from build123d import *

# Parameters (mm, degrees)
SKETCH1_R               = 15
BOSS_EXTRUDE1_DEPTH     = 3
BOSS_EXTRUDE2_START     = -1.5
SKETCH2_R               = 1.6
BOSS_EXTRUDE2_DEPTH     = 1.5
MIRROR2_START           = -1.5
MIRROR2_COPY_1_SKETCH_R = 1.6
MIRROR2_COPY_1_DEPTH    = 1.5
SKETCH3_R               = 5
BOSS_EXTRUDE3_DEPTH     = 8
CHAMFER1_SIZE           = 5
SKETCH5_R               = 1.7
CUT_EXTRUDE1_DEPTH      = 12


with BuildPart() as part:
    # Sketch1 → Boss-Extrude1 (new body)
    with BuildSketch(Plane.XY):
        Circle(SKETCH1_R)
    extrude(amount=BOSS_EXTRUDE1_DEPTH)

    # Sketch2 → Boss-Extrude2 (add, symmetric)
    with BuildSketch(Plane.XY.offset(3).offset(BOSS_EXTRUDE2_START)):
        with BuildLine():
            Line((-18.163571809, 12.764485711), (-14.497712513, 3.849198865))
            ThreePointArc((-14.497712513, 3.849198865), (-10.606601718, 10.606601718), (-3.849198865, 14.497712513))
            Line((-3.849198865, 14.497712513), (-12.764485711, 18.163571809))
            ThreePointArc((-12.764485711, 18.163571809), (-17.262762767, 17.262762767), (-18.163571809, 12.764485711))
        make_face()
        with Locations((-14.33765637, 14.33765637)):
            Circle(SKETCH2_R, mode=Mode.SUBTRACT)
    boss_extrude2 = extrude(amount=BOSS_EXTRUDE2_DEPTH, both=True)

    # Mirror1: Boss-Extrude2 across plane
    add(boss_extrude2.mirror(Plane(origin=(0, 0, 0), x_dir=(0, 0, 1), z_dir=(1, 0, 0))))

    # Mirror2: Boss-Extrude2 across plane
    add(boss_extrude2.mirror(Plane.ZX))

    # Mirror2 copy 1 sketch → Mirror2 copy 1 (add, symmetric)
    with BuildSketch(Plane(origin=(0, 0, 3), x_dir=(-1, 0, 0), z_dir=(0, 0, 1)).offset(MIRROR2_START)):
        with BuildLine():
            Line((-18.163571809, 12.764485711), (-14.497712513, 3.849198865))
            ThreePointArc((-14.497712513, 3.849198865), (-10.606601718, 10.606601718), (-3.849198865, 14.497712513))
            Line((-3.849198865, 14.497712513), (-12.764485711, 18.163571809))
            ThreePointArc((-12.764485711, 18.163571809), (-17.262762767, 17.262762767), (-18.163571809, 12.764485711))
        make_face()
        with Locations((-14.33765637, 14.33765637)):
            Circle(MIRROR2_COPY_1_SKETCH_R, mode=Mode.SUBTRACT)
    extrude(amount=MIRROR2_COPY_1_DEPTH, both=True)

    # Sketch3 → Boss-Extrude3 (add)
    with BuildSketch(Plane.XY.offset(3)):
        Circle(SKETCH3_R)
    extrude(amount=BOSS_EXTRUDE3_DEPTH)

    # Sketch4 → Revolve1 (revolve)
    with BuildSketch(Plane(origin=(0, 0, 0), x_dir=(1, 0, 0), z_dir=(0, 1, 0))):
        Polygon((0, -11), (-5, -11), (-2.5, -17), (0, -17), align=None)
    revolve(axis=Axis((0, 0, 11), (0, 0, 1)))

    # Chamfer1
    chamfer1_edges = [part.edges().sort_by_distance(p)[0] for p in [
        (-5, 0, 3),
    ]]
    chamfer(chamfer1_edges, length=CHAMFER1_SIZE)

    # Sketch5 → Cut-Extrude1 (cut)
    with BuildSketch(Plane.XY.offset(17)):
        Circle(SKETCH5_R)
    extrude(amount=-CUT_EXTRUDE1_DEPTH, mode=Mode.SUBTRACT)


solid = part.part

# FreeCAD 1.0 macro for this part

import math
import FreeCAD as App
import Part
import Sketcher
from FreeCAD import Vector
Q = App.Units.Quantity


def edges_at(feature, points):
    """Names of the edges that pass closest to the given points."""
    edges = feature.Shape.Edges
    near = lambda p: min(range(len(edges)), key=lambda i: edges[i].distToShape(Part.Vertex(*p))[0])
    return sorted({f"Edge{near(p) + 1}" for p in points})

doc = App.newDocument("Part")
body = doc.addObject("PartDesign::Body", "Body")

# Sketch on XY plane
sketch1 = body.newObject("Sketcher::SketchObject", "Sketch")
sketch1.AttachmentSupport = (doc.getObject("XY_Plane"), [""])
sketch1.MapMode = "FlatFace"
sketch1.addGeometry(Part.Circle(Vector(0, 0, 0), Vector(0, 0, 1), 15), False)
sketch1.addConstraint([
    Sketcher.Constraint("Coincident", 0, 3, -1, 1),
    Sketcher.Constraint("Diameter", 0, Q("30 mm")),
])
pad1 = body.newObject("PartDesign::Pad", "Pad")
pad1.Profile = sketch1
pad1.Length = 3

# Sketch on XY plane
sketch2 = body.newObject("Sketcher::SketchObject", "Sketch001")
sketch2.AttachmentSupport = (doc.getObject("XY_Plane"), [""])
sketch2.MapMode = "FlatFace"
sketch2.AttachmentOffset = App.Placement(Vector(0, 0, 1.5), App.Rotation())
sketch2.addGeometry([
    Part.LineSegment(Vector(-18.163572, 12.764486, 0), Vector(-14.497713, 3.849199, 0)),  # 0
    Part.ArcOfCircle(Part.Circle(Vector(0, 0, 0), Vector(0, 0, 1), 15), math.radians(104.869199), math.radians(165.130801)),  # 1
    Part.LineSegment(Vector(-3.849199, 14.497713, 0), Vector(-12.764486, 18.163572, 0)),  # 2
    Part.ArcOfCircle(Part.Circle(Vector(-14.337656, 14.337656, 0), Vector(0, 0, 1), 4.136725), math.radians(67.648121), math.radians(202.351879)),  # 3
    Part.Circle(Vector(-14.337656, 14.337656, 0), Vector(0, 0, 1), 1.6),  # 4
], False)
sketch2.addConstraint([
    Sketcher.Constraint("Coincident", 0, 2, 1, 2),
    Sketcher.Constraint("Coincident", 1, 1, 2, 1),
    Sketcher.Constraint("Tangent", 2, 2, 3, 1),
    Sketcher.Constraint("Tangent", 3, 2, 0, 1),
    Sketcher.Constraint("Coincident", 1, 3, -1, 1),
    Sketcher.Constraint("Coincident", 4, 3, 3, 3),
    Sketcher.Constraint("Equal", 0, 2),
    Sketcher.Constraint("Radius", 1, Q("15 mm")),
    Sketcher.Constraint("Diameter", 4, Q("3.2 mm")),
    Sketcher.Constraint("Radius", 3, Q("4.136725 mm")),
    Sketcher.Constraint("DistanceY", -1, 1, 0, 2, Q("3.849199 mm")),
    Sketcher.Constraint("DistanceX", 1, 1, -1, 1, Q("3.849199 mm")),
    Sketcher.Constraint("DistanceY", -1, 1, 2, 2, Q("18.163572 mm")),
])
pad2 = body.newObject("PartDesign::Pad", "Pad001")
pad2.Profile = sketch2
pad2.Length = 3
pad2.Midplane = True
doc.recompute()

mirrored = body.newObject("PartDesign::Mirrored", "Mirrored")
mirrored.Originals = [pad2]
mirrored.MirrorPlane = (doc.getObject("YZ_Plane"), [""])
body.Tip = mirrored
doc.recompute()

mirrored2 = body.newObject("PartDesign::Mirrored", "Mirrored001")
mirrored2.Originals = [pad2]
mirrored2.MirrorPlane = (doc.getObject("XZ_Plane"), [""])
body.Tip = mirrored2

# Sketch on XY plane
sketch3 = body.newObject("Sketcher::SketchObject", "Sketch002")
sketch3.AttachmentSupport = (doc.getObject("XY_Plane"), [""])
sketch3.MapMode = "FlatFace"
sketch3.AttachmentOffset = App.Placement(Vector(0, 0, 1.5), App.Rotation())
sketch3.addGeometry([
    Part.LineSegment(Vector(18.163572, -12.764486, 0), Vector(14.497713, -3.849199, 0)),  # 0
    Part.ArcOfCircle(Part.Circle(Vector(0, 0, 0), Vector(0, 0, 1), 15), math.radians(-75.130801), math.radians(-14.869199)),  # 1
    Part.LineSegment(Vector(3.849199, -14.497713, 0), Vector(12.764486, -18.163572, 0)),  # 2
    Part.ArcOfCircle(Part.Circle(Vector(14.337656, -14.337656, 0), Vector(0, 0, 1), 4.136725), math.radians(-112.351879), math.radians(22.351879)),  # 3
    Part.Circle(Vector(14.337656, -14.337656, 0), Vector(0, 0, 1), 1.6),  # 4
], False)
sketch3.addConstraint([
    Sketcher.Constraint("Coincident", 0, 2, 1, 2),
    Sketcher.Constraint("Coincident", 1, 1, 2, 1),
    Sketcher.Constraint("Tangent", 2, 2, 3, 1),
    Sketcher.Constraint("Tangent", 3, 2, 0, 1),
    Sketcher.Constraint("Coincident", 1, 3, -1, 1),
    Sketcher.Constraint("Coincident", 4, 3, 3, 3),
    Sketcher.Constraint("Equal", 0, 2),
    Sketcher.Constraint("Radius", 1, Q("15 mm")),
    Sketcher.Constraint("Diameter", 4, Q("3.2 mm")),
    Sketcher.Constraint("Radius", 3, Q("4.136725 mm")),
    Sketcher.Constraint("DistanceY", 0, 2, -1, 1, Q("3.849199 mm")),
    Sketcher.Constraint("DistanceX", -1, 1, 1, 1, Q("3.849199 mm")),
    Sketcher.Constraint("DistanceY", 2, 2, -1, 1, Q("18.163572 mm")),
])
pad3 = body.newObject("PartDesign::Pad", "Pad002")
pad3.Profile = sketch3
pad3.Length = 3
pad3.Midplane = True

# Sketch on XY plane
sketch4 = body.newObject("Sketcher::SketchObject", "Sketch003")
sketch4.AttachmentSupport = (doc.getObject("XY_Plane"), [""])
sketch4.MapMode = "FlatFace"
sketch4.AttachmentOffset = App.Placement(Vector(0, 0, 3), App.Rotation())
sketch4.addGeometry(Part.Circle(Vector(0, 0, 0), Vector(0, 0, 1), 5), False)
sketch4.addConstraint([
    Sketcher.Constraint("Coincident", 0, 3, -1, 1),
    Sketcher.Constraint("Diameter", 0, Q("10 mm")),
])
pad4 = body.newObject("PartDesign::Pad", "Pad003")
pad4.Profile = sketch4
pad4.Length = 8

# Sketch on XZ plane
sketch5 = body.newObject("Sketcher::SketchObject", "Sketch004")
sketch5.AttachmentSupport = (doc.getObject("XZ_Plane"), [""])
sketch5.MapMode = "FlatFace"
sketch5.addGeometry([
    Part.LineSegment(Vector(0, 11, 0), Vector(-5, 11, 0)),
    Part.LineSegment(Vector(-5, 11, 0), Vector(-2.5, 17, 0)),
    Part.LineSegment(Vector(-2.5, 17, 0), Vector(0, 17, 0)),
    Part.LineSegment(Vector(0, 17, 0), Vector(0, 11, 0)),
], False)
sketch5.addConstraint([
    Sketcher.Constraint("Coincident", 0, 2, 1, 1),
    Sketcher.Constraint("Coincident", 1, 2, 2, 1),
    Sketcher.Constraint("Coincident", 2, 2, 3, 1),
    Sketcher.Constraint("Coincident", 3, 2, 0, 1),
    Sketcher.Constraint("Horizontal", 0),
    Sketcher.Constraint("Horizontal", 2),
    Sketcher.Constraint("Vertical", 3),
    Sketcher.Constraint("PointOnObject", 2, 2, -2),
    Sketcher.Constraint("DistanceX", 0, 2, 0, 1, Q("5 mm")),
    Sketcher.Constraint("DistanceY", 3, 2, 3, 1, Q("6 mm")),
    Sketcher.Constraint("DistanceX", 2, 1, 2, 2, Q("2.5 mm")),
    Sketcher.Constraint("DistanceY", -1, 1, 0, 2, Q("11 mm")),
])
revolution = body.newObject("PartDesign::Revolution", "Revolution")
revolution.Profile = sketch5
revolution.ReferenceAxis = (sketch5, ["V_Axis"])
revolution.Angle = 360
doc.recompute()

chamfer = body.newObject("PartDesign::Chamfer", "Chamfer")
chamfer.Base = (revolution, edges_at(revolution, [(-5, 0, 3)]))
chamfer.Size = 5

# Sketch on XY plane
sketch6 = body.newObject("Sketcher::SketchObject", "Sketch005")
sketch6.AttachmentSupport = (doc.getObject("XY_Plane"), [""])
sketch6.MapMode = "FlatFace"
sketch6.AttachmentOffset = App.Placement(Vector(0, 0, 17), App.Rotation())
sketch6.addGeometry(Part.Circle(Vector(0, 0, 0), Vector(0, 0, 1), 1.7), False)
sketch6.addConstraint([
    Sketcher.Constraint("Coincident", 0, 3, -1, 1),
    Sketcher.Constraint("Diameter", 0, Q("3.4 mm")),
])
pocket1 = body.newObject("PartDesign::Pocket", "Pocket")
pocket1.Profile = sketch6
pocket1.Length = 12

doc.recompute()
